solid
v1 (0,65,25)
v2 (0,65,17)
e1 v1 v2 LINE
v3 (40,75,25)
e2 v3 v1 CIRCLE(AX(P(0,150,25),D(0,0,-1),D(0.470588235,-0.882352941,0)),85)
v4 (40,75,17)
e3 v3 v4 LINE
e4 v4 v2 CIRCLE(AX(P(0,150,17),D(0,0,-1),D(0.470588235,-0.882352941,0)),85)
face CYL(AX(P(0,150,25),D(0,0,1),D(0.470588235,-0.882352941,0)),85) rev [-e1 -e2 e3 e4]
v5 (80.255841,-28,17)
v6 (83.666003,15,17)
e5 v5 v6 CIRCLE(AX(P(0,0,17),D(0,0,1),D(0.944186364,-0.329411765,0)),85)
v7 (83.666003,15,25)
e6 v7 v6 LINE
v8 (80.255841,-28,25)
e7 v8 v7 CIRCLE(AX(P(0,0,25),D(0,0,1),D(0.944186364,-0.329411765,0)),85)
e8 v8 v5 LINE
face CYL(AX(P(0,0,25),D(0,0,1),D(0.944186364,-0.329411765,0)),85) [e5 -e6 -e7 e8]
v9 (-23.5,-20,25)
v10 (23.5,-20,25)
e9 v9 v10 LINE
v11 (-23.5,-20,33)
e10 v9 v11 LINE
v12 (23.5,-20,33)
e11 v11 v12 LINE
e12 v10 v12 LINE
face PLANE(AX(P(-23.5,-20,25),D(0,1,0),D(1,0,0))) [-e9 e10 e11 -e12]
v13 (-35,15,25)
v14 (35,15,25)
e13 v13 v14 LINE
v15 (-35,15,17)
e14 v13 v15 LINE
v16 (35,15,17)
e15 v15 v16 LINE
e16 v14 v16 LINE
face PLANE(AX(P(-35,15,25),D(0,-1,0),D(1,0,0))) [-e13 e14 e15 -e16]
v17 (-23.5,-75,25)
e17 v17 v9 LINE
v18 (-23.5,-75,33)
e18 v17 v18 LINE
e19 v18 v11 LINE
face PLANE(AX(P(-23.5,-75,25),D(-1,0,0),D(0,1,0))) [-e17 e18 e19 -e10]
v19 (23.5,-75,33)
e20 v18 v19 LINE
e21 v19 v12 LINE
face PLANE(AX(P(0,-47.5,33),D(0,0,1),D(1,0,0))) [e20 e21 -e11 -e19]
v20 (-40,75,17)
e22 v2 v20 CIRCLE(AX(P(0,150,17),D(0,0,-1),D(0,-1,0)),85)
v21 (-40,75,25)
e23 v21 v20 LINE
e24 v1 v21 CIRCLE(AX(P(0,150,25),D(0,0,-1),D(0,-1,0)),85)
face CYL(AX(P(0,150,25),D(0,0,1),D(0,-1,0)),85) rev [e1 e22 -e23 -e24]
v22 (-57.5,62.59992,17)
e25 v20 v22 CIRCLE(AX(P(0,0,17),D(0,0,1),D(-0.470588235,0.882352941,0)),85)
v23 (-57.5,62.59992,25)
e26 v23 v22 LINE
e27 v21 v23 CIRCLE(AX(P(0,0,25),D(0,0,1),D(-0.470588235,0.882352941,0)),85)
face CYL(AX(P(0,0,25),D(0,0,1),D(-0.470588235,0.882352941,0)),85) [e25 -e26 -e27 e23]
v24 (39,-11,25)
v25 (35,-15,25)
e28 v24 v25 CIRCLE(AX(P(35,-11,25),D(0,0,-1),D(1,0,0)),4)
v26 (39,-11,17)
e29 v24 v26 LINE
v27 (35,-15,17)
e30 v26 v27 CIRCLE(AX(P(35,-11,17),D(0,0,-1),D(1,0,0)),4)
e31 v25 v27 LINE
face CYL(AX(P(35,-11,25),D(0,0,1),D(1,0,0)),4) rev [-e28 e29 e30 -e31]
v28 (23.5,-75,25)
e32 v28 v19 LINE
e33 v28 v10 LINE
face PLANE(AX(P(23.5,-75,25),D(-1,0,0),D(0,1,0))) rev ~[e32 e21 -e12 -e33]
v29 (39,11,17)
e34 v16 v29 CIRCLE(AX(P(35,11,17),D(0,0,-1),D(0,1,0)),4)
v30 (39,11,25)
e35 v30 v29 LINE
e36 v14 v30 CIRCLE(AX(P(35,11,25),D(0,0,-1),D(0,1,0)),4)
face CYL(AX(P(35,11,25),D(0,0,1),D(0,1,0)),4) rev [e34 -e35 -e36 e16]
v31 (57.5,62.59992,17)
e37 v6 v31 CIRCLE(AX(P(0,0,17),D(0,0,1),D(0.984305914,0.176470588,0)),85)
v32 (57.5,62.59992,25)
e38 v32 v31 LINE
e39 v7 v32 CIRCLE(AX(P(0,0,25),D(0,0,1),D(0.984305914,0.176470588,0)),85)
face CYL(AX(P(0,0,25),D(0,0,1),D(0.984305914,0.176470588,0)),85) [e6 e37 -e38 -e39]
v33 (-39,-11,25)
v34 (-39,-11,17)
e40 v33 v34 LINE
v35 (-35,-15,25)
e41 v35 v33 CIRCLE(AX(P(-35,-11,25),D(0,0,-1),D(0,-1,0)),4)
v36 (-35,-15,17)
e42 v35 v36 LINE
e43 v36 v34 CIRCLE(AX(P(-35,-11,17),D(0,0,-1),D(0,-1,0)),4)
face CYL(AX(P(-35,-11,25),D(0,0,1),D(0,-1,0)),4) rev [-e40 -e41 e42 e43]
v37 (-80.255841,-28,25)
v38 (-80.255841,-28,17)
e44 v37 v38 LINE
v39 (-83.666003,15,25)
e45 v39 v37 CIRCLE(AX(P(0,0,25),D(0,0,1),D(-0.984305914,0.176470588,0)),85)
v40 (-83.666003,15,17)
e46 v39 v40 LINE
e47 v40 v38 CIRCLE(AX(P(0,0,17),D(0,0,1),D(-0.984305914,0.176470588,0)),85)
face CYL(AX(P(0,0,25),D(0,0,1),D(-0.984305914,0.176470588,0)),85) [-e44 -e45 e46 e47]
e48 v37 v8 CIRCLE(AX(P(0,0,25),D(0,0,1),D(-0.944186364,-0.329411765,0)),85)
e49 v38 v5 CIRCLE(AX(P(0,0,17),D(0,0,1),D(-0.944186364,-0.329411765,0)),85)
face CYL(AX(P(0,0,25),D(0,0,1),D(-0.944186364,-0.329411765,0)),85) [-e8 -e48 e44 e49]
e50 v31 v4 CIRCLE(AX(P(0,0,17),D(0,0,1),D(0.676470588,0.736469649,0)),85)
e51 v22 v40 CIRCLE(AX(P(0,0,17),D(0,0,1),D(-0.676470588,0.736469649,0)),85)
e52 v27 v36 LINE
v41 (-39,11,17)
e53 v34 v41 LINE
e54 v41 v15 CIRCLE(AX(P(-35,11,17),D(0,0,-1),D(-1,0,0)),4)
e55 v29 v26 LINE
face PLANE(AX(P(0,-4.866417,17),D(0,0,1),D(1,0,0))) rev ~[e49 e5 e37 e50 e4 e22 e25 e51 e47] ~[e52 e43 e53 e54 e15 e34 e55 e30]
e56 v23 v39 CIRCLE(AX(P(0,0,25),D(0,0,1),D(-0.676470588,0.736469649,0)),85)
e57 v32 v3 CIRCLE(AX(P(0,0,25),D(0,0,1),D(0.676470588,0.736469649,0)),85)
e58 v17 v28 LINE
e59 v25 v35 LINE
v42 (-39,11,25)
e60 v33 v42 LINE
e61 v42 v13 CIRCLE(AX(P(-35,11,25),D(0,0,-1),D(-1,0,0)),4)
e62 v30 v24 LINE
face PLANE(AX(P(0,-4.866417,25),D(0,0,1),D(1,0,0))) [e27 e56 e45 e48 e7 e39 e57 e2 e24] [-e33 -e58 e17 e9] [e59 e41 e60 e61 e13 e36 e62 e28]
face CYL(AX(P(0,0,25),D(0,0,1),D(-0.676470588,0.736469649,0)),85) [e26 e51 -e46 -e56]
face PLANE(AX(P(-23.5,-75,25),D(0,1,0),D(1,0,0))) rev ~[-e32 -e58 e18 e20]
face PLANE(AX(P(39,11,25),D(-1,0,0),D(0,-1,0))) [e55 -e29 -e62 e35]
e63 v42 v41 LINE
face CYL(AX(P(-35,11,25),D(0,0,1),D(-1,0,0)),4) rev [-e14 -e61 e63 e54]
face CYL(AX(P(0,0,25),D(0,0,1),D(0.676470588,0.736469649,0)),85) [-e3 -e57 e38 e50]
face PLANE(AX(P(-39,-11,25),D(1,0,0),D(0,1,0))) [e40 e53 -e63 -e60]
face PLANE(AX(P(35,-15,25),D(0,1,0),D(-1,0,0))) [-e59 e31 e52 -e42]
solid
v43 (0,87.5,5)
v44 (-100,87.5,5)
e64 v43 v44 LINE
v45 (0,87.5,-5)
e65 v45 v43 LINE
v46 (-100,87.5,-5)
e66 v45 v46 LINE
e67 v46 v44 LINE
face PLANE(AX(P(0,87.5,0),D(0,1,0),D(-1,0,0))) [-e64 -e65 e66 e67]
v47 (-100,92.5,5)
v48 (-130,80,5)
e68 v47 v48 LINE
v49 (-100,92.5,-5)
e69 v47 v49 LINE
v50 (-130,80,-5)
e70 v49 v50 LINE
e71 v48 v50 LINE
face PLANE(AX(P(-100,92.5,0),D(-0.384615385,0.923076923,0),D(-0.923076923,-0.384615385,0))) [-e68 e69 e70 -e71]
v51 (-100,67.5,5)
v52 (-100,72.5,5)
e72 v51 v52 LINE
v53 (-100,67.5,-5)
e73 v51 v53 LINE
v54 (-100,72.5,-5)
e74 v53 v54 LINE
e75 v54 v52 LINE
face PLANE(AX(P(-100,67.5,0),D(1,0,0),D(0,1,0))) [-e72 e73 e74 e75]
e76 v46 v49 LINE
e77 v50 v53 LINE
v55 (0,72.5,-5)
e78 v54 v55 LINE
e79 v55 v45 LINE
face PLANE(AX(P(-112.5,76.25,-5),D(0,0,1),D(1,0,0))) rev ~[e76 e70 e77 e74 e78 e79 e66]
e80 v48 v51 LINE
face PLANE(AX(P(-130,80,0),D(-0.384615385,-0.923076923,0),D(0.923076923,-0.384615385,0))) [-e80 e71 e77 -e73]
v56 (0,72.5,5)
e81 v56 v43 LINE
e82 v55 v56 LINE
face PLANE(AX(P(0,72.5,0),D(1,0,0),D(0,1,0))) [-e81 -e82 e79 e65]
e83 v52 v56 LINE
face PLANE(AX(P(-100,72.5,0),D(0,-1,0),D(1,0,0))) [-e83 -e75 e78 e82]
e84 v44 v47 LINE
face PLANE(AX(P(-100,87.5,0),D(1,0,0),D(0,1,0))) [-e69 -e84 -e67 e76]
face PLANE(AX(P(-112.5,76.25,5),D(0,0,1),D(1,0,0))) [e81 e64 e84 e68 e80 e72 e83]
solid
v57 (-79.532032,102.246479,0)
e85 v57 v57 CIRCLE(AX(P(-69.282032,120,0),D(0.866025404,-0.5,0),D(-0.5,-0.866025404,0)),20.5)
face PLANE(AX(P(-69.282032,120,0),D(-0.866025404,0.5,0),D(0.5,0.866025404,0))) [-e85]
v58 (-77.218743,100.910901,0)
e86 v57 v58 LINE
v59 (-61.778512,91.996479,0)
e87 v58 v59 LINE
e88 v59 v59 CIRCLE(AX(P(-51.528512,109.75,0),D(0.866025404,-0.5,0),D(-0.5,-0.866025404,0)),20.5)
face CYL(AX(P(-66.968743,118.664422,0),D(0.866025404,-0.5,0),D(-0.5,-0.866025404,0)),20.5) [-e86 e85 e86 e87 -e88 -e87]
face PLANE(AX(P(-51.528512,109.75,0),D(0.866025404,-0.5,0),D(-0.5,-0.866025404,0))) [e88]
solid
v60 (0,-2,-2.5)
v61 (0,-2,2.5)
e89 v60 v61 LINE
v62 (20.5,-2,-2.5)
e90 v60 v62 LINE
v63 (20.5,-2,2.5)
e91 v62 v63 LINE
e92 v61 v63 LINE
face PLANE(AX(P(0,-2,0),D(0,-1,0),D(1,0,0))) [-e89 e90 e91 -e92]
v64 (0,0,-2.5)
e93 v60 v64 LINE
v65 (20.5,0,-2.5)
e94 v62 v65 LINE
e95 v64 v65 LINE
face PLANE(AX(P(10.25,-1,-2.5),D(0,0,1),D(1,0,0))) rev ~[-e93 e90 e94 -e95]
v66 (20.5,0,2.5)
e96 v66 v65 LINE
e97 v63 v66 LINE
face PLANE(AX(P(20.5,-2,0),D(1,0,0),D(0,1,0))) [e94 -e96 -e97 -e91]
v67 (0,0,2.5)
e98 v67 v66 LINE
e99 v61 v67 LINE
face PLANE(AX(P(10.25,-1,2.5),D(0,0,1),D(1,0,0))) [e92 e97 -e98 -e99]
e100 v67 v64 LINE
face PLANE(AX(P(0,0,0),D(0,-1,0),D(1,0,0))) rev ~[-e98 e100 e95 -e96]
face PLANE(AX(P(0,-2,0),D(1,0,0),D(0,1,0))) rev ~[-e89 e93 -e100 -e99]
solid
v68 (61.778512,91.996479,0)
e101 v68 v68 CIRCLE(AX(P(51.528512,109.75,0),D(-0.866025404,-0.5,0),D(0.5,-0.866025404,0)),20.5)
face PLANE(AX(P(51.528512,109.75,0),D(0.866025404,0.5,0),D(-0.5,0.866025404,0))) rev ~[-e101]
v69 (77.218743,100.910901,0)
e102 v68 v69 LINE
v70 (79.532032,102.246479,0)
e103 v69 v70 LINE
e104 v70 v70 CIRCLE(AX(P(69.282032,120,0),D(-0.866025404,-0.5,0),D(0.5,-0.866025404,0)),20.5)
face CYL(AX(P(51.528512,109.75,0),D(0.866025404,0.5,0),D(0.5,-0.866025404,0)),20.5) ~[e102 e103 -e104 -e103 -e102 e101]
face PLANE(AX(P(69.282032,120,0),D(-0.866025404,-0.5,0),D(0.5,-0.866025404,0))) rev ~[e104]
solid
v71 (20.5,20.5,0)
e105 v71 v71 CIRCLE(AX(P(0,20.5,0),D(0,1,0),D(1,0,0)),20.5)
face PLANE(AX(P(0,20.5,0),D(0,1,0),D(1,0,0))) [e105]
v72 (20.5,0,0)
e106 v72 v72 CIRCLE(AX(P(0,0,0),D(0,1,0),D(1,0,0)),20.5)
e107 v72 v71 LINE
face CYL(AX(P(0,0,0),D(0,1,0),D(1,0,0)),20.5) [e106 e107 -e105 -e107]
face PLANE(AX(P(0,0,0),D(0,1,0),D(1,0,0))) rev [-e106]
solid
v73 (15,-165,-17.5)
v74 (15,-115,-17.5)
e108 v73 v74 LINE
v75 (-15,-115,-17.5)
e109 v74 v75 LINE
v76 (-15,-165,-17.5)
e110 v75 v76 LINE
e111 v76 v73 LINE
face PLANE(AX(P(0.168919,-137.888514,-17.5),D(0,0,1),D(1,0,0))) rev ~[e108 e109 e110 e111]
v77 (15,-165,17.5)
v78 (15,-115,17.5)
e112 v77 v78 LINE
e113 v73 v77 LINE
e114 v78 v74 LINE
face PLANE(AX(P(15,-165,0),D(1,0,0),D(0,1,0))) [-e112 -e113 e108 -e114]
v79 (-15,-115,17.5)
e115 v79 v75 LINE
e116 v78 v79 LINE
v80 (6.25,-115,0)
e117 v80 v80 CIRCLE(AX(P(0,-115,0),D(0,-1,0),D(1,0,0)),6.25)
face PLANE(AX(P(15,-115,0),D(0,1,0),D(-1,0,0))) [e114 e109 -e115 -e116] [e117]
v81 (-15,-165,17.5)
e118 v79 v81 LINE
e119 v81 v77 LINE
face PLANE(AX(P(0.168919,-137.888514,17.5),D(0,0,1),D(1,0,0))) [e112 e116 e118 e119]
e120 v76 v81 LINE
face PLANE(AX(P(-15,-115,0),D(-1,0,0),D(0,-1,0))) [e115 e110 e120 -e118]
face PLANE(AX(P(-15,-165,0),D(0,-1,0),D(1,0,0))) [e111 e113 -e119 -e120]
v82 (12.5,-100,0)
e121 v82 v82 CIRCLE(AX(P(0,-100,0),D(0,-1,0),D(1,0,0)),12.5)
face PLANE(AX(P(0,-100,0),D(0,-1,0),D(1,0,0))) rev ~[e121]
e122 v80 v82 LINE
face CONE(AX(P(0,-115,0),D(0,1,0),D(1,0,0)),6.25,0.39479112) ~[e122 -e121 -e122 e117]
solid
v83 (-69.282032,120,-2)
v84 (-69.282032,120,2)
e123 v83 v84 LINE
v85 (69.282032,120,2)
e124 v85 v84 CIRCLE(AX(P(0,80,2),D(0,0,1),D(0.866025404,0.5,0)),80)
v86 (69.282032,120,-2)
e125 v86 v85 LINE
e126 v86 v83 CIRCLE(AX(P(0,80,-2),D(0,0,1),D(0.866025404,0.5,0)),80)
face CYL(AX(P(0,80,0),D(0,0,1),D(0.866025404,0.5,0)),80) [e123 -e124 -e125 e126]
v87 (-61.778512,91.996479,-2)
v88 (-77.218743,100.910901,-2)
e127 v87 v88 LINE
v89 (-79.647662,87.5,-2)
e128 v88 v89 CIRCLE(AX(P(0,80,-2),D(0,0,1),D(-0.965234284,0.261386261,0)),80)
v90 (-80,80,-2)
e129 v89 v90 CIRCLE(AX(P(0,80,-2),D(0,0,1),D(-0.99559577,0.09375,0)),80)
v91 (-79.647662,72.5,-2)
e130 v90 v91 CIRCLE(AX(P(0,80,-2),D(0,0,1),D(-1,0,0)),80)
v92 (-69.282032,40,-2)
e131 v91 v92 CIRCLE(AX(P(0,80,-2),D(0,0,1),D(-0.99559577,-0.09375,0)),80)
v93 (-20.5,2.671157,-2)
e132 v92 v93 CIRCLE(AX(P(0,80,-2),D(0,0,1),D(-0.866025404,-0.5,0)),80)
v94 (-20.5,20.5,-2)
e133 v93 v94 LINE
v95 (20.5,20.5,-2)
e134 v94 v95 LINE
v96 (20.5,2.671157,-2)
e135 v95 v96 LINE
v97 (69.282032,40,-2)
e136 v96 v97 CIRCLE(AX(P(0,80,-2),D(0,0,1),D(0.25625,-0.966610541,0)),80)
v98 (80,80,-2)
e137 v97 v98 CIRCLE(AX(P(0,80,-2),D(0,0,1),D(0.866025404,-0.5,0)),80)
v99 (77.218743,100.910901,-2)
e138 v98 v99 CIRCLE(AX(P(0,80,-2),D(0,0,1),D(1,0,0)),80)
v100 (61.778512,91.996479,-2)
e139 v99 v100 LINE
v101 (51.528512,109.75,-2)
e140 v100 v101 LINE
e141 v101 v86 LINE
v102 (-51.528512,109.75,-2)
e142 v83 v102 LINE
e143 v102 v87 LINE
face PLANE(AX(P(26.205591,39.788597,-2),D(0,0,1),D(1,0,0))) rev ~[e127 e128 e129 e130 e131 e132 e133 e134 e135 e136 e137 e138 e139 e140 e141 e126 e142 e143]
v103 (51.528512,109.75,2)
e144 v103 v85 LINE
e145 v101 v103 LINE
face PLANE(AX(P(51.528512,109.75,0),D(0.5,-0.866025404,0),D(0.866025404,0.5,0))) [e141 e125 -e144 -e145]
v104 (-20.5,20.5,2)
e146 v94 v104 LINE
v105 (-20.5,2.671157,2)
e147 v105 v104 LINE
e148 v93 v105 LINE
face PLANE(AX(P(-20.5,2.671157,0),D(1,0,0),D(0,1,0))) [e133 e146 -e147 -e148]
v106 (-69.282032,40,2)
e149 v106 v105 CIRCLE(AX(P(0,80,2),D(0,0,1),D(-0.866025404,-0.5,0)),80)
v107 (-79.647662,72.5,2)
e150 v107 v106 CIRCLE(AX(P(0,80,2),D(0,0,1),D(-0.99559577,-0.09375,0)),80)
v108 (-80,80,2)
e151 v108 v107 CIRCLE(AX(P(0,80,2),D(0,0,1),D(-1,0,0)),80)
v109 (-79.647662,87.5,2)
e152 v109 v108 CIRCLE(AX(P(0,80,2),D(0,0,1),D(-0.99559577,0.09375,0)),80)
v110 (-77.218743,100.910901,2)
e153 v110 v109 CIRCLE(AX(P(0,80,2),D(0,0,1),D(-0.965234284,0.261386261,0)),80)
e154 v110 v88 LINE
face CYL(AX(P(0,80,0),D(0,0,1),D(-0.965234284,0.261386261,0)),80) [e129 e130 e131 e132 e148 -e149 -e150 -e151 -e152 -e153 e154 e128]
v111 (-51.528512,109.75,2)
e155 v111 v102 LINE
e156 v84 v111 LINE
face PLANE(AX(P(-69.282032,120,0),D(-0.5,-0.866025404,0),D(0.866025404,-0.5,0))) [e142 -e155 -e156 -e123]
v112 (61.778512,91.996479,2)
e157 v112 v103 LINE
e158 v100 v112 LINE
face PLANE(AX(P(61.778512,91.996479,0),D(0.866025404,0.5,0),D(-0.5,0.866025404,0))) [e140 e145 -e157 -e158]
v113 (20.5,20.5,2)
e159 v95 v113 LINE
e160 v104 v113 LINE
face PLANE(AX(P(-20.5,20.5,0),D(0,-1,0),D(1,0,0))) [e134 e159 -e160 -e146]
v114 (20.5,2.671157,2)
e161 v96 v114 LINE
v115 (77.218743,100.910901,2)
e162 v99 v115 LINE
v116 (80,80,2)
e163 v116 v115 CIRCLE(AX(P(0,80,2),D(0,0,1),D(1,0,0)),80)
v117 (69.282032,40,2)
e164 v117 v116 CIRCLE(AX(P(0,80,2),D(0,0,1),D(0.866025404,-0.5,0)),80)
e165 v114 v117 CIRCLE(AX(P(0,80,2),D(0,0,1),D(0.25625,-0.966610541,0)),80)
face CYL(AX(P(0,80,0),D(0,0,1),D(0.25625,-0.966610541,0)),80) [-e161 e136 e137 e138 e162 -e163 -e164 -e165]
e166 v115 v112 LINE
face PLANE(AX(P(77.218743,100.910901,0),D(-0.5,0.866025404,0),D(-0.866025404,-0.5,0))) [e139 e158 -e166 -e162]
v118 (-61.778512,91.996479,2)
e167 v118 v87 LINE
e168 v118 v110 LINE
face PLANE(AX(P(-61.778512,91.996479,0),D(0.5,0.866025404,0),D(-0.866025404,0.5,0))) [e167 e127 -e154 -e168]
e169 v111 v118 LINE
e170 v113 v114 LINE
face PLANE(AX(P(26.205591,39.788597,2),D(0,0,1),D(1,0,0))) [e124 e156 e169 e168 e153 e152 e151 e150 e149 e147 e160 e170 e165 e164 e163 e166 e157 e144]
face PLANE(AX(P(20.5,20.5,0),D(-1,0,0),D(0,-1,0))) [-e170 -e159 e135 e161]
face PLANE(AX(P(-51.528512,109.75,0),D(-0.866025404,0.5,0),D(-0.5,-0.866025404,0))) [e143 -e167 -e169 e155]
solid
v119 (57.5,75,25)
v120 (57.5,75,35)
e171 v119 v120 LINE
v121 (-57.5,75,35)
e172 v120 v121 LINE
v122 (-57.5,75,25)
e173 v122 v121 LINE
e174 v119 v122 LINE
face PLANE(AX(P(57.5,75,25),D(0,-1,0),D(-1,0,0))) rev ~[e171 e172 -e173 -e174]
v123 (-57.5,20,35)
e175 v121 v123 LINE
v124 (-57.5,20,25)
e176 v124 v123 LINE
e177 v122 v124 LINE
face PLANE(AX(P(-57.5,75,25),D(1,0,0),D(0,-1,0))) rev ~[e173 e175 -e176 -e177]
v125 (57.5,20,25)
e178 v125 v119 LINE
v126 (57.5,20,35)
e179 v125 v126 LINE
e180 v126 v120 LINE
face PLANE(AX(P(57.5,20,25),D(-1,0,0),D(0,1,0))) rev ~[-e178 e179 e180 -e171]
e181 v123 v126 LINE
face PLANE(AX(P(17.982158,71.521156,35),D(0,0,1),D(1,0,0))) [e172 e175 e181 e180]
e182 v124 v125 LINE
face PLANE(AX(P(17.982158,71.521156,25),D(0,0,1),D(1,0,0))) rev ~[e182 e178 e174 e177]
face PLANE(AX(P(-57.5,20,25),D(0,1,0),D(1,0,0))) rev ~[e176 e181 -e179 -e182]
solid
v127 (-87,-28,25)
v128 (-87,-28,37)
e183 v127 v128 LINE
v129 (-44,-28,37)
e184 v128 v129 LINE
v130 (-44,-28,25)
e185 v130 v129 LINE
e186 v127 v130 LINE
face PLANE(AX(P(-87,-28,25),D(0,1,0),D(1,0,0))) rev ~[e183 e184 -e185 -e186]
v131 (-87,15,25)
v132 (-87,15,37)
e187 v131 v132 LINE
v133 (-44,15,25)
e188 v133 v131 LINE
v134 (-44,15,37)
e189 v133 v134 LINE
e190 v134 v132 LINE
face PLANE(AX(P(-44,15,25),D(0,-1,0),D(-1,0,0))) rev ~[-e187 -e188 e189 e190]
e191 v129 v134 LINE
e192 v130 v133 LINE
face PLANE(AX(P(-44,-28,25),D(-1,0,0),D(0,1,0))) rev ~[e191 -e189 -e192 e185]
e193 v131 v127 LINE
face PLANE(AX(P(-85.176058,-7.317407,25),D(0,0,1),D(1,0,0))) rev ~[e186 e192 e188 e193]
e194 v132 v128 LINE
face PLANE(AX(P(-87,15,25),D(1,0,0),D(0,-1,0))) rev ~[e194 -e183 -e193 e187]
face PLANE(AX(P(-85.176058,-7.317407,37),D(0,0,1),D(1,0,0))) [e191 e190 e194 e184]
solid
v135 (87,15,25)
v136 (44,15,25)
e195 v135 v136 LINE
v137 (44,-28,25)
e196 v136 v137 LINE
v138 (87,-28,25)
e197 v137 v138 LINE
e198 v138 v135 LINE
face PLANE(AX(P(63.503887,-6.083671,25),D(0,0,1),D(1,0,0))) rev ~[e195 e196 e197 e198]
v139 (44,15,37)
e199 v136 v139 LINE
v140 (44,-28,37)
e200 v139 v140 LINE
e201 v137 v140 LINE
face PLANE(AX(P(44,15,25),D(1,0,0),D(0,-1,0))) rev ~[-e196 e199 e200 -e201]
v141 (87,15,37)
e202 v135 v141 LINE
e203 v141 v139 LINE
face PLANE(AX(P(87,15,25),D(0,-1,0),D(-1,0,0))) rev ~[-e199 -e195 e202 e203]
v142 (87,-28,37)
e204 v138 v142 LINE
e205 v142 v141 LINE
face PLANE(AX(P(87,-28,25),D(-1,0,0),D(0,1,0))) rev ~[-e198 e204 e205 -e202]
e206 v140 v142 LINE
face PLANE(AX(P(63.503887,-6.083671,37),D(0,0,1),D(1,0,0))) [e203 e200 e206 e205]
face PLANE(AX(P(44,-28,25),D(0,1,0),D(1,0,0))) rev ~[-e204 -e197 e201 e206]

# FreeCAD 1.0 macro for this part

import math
import FreeCAD as App
import Part
import Sketcher

V = App.Vector
Q = App.Units.Quantity


def add_polygon(sketch, points):
    """Adds a closed chain of lines whose ends are joined by coincident constraints."""
    first, n = sketch.GeometryCount, len(points)
    for a, b in zip(points, points[1:] + points[:1]):
        sketch.addGeometry(Part.LineSegment(App.Vector(*a, 0), App.Vector(*b, 0)), False)
    for i in range(n):
        sketch.addConstraint(Sketcher.Constraint("Coincident", first + i, 2, first + (i + 1) % n, 1))

doc = App.newDocument("Part")
body = doc.addObject("PartDesign::Body", "Body")

# Sketch on XY plane
sketch1 = body.newObject("Sketcher::SketchObject", "Sketch")
sketch1.AttachmentSupport = (doc.getObject("XY_Plane"), [""])
sketch1.MapMode = "FlatFace"
sketch1.addGeometry([
    Part.ArcOfCircle(Part.Circle(V(0, 80, 0), V(0, 0, 1), 80), math.radians(164.85), math.radians(174.62)),  # 0
    Part.ArcOfCircle(Part.Circle(V(0, 80, 0), V(0, 0, 1), 80), math.radians(174.62), math.radians(180)),  # 1
    Part.ArcOfCircle(Part.Circle(V(0, 80, 0), V(0, 0, 1), 80), math.radians(-180), math.radians(-174.62)),  # 2
    Part.ArcOfCircle(Part.Circle(V(0, 80, 0), V(0, 0, 1), 80), math.radians(-175), math.radians(-150)),  # 3
    Part.ArcOfCircle(Part.Circle(V(0, 80, 0), V(0, 0, 1), 80), math.radians(-150), math.radians(-105)),  # 4
    Part.LineSegment(V(-20, 3, 0), V(-20, 20, 0)),  # 5
    Part.LineSegment(V(-20, 20, 0), V(20, 20, 0)),  # 6
    Part.LineSegment(V(20, 20, 0), V(20, 3, 0)),  # 7
    Part.ArcOfCircle(Part.Circle(V(0, 80, 0), V(0, 0, 1), 80), math.radians(-75), math.radians(-30)),  # 8
    Part.ArcOfCircle(Part.Circle(V(0, 80, 0), V(0, 0, 1), 80), math.radians(-30), math.radians(0)),  # 9
    Part.ArcOfCircle(Part.Circle(V(0, 80, 0), V(0, 0, 1), 80), math.radians(0), math.radians(15.15)),  # 10
    Part.LineSegment(V(77, 101, 0), V(62, 92, 0)),  # 11
    Part.LineSegment(V(62, 92, 0), V(52, 110, 0)),  # 12
    Part.LineSegment(V(52, 110, 0), V(69, 120, 0)),  # 13
    Part.ArcOfCircle(Part.Circle(V(0, 80, 0), V(0, 0, 1), 80), math.radians(30), math.radians(150)),  # 14
    Part.LineSegment(V(-69, 120, 0), V(-52, 110, 0)),  # 15
    Part.LineSegment(V(-52, 110, 0), V(-62, 92, 0)),  # 16
    Part.LineSegment(V(-62, 92, 0), V(-77, 101, 0)),  # 17
], False)
sketch1.addConstraint([
    Sketcher.Constraint("Tangent", 0, 2, 1, 1),
    Sketcher.Constraint("Tangent", 1, 2, 2, 1),
    Sketcher.Constraint("Tangent", 2, 2, 3, 1),
    Sketcher.Constraint("Tangent", 3, 2, 4, 1),
    Sketcher.Constraint("Coincident", 4, 2, 5, 1),
    Sketcher.Constraint("Coincident", 5, 2, 6, 1),
    Sketcher.Constraint("Coincident", 6, 2, 7, 1),
    Sketcher.Constraint("Coincident", 7, 2, 8, 1),
    Sketcher.Constraint("Tangent", 8, 2, 9, 1),
    Sketcher.Constraint("Tangent", 9, 2, 10, 1),
    Sketcher.Constraint("Coincident", 10, 2, 11, 1),
    Sketcher.Constraint("Coincident", 11, 2, 12, 1),
    Sketcher.Constraint("Coincident", 12, 2, 13, 1),
    Sketcher.Constraint("Coincident", 13, 2, 14, 1),
    Sketcher.Constraint("Coincident", 14, 2, 15, 1),
    Sketcher.Constraint("Coincident", 15, 2, 16, 1),
    Sketcher.Constraint("Coincident", 16, 2, 17, 1),
    Sketcher.Constraint("Coincident", 17, 2, 0, 1),
    Sketcher.Constraint("Vertical", 5),
    Sketcher.Constraint("Horizontal", 6),
    Sketcher.Constraint("Vertical", 7),
    Sketcher.Constraint("Coincident", 2, 3, 0, 3),
    Sketcher.Constraint("Coincident", 4, 3, 0, 3),
    Sketcher.Constraint("Coincident", 8, 3, 0, 3),
    Sketcher.Constraint("Coincident", 10, 3, 0, 3),
    Sketcher.Constraint("Coincident", 14, 3, 0, 3),
    Sketcher.Constraint("Equal", 4, 8),
    Sketcher.Constraint("Equal", 10, 14),
    Sketcher.Constraint("Symmetric", 4, 2, 7, 2, -2),
    Sketcher.Constraint("Symmetric", 12, 2, 15, 2, -2),
    Sketcher.Constraint("Symmetric", 11, 2, 16, 2, -2),
    Sketcher.Constraint("Perpendicular", 11, 12),
    Sketcher.Constraint("Perpendicular", 12, 13),
    Sketcher.Constraint("Perpendicular", 15, 16),
    Sketcher.Constraint("Perpendicular", 16, 17),
    Sketcher.Constraint("Horizontal", 14, 3, 1, 2),
    Sketcher.Constraint("Horizontal", 3, 2, 8, 2),
    Sketcher.Constraint("Horizontal", 1, 2, 9, 2),
    Sketcher.Constraint("Vertical", 0, 2, 2, 2),
    Sketcher.Constraint("Vertical", 8, 2, 13, 2),
    Sketcher.Constraint("Equal", 12, 13),
    Sketcher.Constraint("Radius", 0, Q("80 mm")),
    Sketcher.Constraint("DistanceX", 6, 1, 6, 2, Q("41 mm")),
    Sketcher.Constraint("Angle", 11, Q("-150 deg")),
    Sketcher.Constraint("DistanceY", -1, 1, 0, 3, Q("80 mm")),
    Sketcher.Constraint("DistanceY", -1, 1, 3, 2, Q("40 mm")),
    Sketcher.Constraint("DistanceY", 2, 2, 0, 2, Q("15 mm")),
    Sketcher.Constraint("Distance", 12, Q("20.5 mm")),
    Sketcher.Constraint("DistanceY", -1, 1, 5, 2, Q("20.5 mm")),
])
pad1 = body.newObject("PartDesign::Pad", "Pad")
pad1.Profile = sketch1
pad1.Length = 4
pad1.Midplane = True
body2 = doc.addObject("PartDesign::Body", "Body001")

# Sketch on XY plane
sketch2 = body2.newObject("Sketcher::SketchObject", "Sketch001")
sketch2.AttachmentSupport = (doc.getObject("XY_Plane001"), [""])
sketch2.MapMode = "FlatFace"
add_polygon(sketch2, [(0, 20), (0, 0), (20, 0), (20, 20)])  # lines 0-3
sketch2.addConstraint([
    Sketcher.Constraint("Vertical", 0),
    Sketcher.Constraint("Horizontal", 1),
    Sketcher.Constraint("Vertical", 2),
    Sketcher.Constraint("Horizontal", 3),
    Sketcher.Constraint("Coincident", 0, 2, -1, 1),
    Sketcher.Constraint("Equal", 3, 0),
    Sketcher.Constraint("DistanceX", 1, 1, 1, 2, Q("20.5 mm")),
])
revolution = body2.newObject("PartDesign::Revolution", "Revolution")
revolution.Profile = sketch2
revolution.ReferenceAxis = (sketch2, ["V_Axis"])
revolution.Angle = 360
body3 = doc.addObject("PartDesign::Body", "Body002")

# Sketch on XY plane
sketch3 = body3.newObject("Sketcher::SketchObject", "Sketch002")
sketch3.AttachmentSupport = (doc.getObject("XY_Plane002"), [""])
sketch3.MapMode = "FlatFace"
add_polygon(sketch3, [(12, -100), (0, -100), (0, -115), (6, -115)])  # lines 0-3
sketch3.addConstraint([
    Sketcher.Constraint("Horizontal", 0),
    Sketcher.Constraint("Vertical", 1),
    Sketcher.Constraint("Horizontal", 2),
    Sketcher.Constraint("PointOnObject", 0, 2, -2),
    Sketcher.Constraint("DistanceY", 1, 2, 1, 1, Q("15 mm")),
    Sketcher.Constraint("DistanceX", 0, 2, 0, 1, Q("12.5 mm")),
    Sketcher.Constraint("DistanceY", 0, 2, -1, 1, Q("100 mm")),
    Sketcher.Constraint("DistanceX", 2, 1, 2, 2, Q("6.25 mm")),
])
revolution2 = body3.newObject("PartDesign::Revolution", "Revolution001")
revolution2.Profile = sketch3
revolution2.ReferenceAxis = (sketch3, ["V_Axis"])
revolution2.Angle = 360

# Sketch on XY plane
sketch4 = body3.newObject("Sketcher::SketchObject", "Sketch003")
sketch4.AttachmentSupport = (doc.getObject("XY_Plane002"), [""])
sketch4.MapMode = "FlatFace"
add_polygon(sketch4, [(-15, -115), (-15, -165), (15, -165), (15, -115)])  # lines 0-3
sketch4.addConstraint([
    Sketcher.Constraint("Vertical", 0),
    Sketcher.Constraint("Horizontal", 1),
    Sketcher.Constraint("Vertical", 2),
    Sketcher.Constraint("Horizontal", 3),
    Sketcher.Constraint("DistanceX", 1, 1, 1, 2, Q("30 mm")),
    Sketcher.Constraint("DistanceY", 0, 2, 0, 1, Q("50 mm")),
    Sketcher.Constraint("DistanceX", 0, 2, -1, 1, Q("15 mm")),
    Sketcher.Constraint("DistanceY", 0, 2, -1, 1, Q("165 mm")),
])
pad2 = body3.newObject("PartDesign::Pad", "Pad001")
pad2.Profile = sketch4
pad2.Length = 35
pad2.Midplane = True
body4 = doc.addObject("PartDesign::Body", "Body003")

# Sketch on XY plane
sketch5 = body4.newObject("Sketcher::SketchObject", "Sketch004")
sketch5.AttachmentSupport = (doc.getObject("XY_Plane003"), [""])
sketch5.MapMode = "FlatFace"
add_polygon(sketch5, [(0, 0), (0, -2), (20.5, -2), (20.5, 0)])  # lines 0-3
sketch5.addConstraint([
    Sketcher.Constraint("Vertical", 0),
    Sketcher.Constraint("Horizontal", 1),
    Sketcher.Constraint("Vertical", 2),
    Sketcher.Constraint("Horizontal", 3),
    Sketcher.Constraint("Coincident", 3, 2, -1, 1),
    Sketcher.Constraint("DistanceY", 0, 2, 0, 1, Q("2 mm")),
    Sketcher.Constraint("DistanceX", 1, 1, 1, 2, Q("20.5 mm")),
])
pad3 = body4.newObject("PartDesign::Pad", "Pad002")
pad3.Profile = sketch5
pad3.Length = 5
pad3.Midplane = True
body5 = doc.addObject("PartDesign::Body", "Body004")

# Sketch on XY plane
sketch6 = body5.newObject("Sketcher::SketchObject", "Sketch005")
sketch6.AttachmentSupport = (doc.getObject("XY_Plane004"), [""])
sketch6.MapMode = "FlatFace"
add_polygon(sketch6, [(61.8, 92), (77.2, 100.9), (79.5, 102.2), (69.3, 120), (51.5, 109.8)])  # lines 0-4
sketch6.addGeometry(Part.LineSegment(V(69.3, 120, 0), V(51.5, 109.7, 0)), True)  # axis
sketch6.addConstraint([
    Sketcher.Constraint("Coincident", 5, 1, 2, 2),
    Sketcher.Constraint("Coincident", 5, 2, 3, 2),
    Sketcher.Constraint("Parallel", 0, 1),
    Sketcher.Constraint("Perpendicular", 1, 2),
    Sketcher.Constraint("Perpendicular", 2, 3),
    Sketcher.Constraint("Perpendicular", 3, 4),
    Sketcher.Constraint("Equal", 2, 3),
    Sketcher.Constraint("Angle", 0, Q("30 deg")),
    Sketcher.Constraint("DistanceY", -1, 1, 2, 2, Q("120 mm")),
    Sketcher.Constraint("Distance", 2, Q("20.5 mm")),
    Sketcher.Constraint("DistanceY", -1, 1, 0, 2, Q("100.910901 mm")),
    Sketcher.Constraint("DistanceX", -1, 1, 3, 2, Q("51.528512 mm")),
])
revolution3 = body5.newObject("PartDesign::Revolution", "Revolution002")
revolution3.Profile = sketch6
revolution3.ReferenceAxis = (sketch6, ["Axis0"])
revolution3.Angle = 360
body6 = doc.addObject("PartDesign::Body", "Body005")

# Sketch on XY plane
sketch7 = body6.newObject("Sketcher::SketchObject", "Sketch006")
sketch7.AttachmentSupport = (doc.getObject("XY_Plane005"), [""])
sketch7.MapMode = "FlatFace"
add_polygon(sketch7, [(-77.2, 100.9), (-61.8, 92), (-51.5, 109.8), (-69.3, 120), (-79.5, 102.2)])  # lines 0-4
sketch7.addGeometry(Part.LineSegment(V(-69.3, 120, 0), V(-51.5, 109.7, 0)), True)  # axis
sketch7.addConstraint([
    Sketcher.Constraint("Coincident", 5, 1, 2, 2),
    Sketcher.Constraint("Coincident", 5, 2, 1, 2),
    Sketcher.Constraint("Perpendicular", 0, 1),
    Sketcher.Constraint("Perpendicular", 1, 2),
    Sketcher.Constraint("Perpendicular", 2, 3),
    Sketcher.Constraint("Perpendicular", 3, 4),
    Sketcher.Constraint("Equal", 1, 2),
    Sketcher.Constraint("Angle", 0, Q("-30 deg")),
    Sketcher.Constraint("DistanceY", -1, 1, 2, 2, Q("120 mm")),
    Sketcher.Constraint("Distance", 1, Q("20.5 mm")),
    Sketcher.Constraint("DistanceY", -1, 1, 4, 2, Q("100.910901 mm")),
    Sketcher.Constraint("DistanceX", 0, 2, -1, 1, Q("61.778512 mm")),
])
revolution4 = body6.newObject("PartDesign::Revolution", "Revolution003")
revolution4.Profile = sketch7
revolution4.ReferenceAxis = (sketch7, ["Axis0"])
revolution4.Angle = 360
body7 = doc.addObject("PartDesign::Body", "Body006")

# Sketch on XY plane
sketch8 = body7.newObject("Sketcher::SketchObject", "Sketch007")
sketch8.AttachmentSupport = (doc.getObject("XY_Plane006"), [""])
sketch8.MapMode = "FlatFace"
add_polygon(sketch8, [(-100, 68), (-100, 72), (0, 72), (0, 88), (-100, 88), (-100, 92), (-130, 80)])  # lines 0-6
sketch8.addConstraint([
    Sketcher.Constraint("Vertical", 0),
    Sketcher.Constraint("Horizontal", 1),
    Sketcher.Constraint("Vertical", 2),
    Sketcher.Constraint("Horizontal", 3),
    Sketcher.Constraint("Vertical", 4),
    Sketcher.Constraint("PointOnObject", 1, 2, -2),
    Sketcher.Constraint("Vertical", 0, 2, 3, 2),
    Sketcher.Constraint("Equal", 0, 4),
    Sketcher.Constraint("Equal", 5, 6),
    Sketcher.Constraint("DistanceX", 1, 1, 1, 2, Q("100 mm")),
    Sketcher.Constraint("DistanceY", 0, 1, 0, 2, Q("5 mm")),
    Sketcher.Constraint("DistanceY", 2, 1, 2, 2, Q("15 mm")),
    Sketcher.Constraint("DistanceX", 5, 2, -1, 1, Q("130 mm")),
    Sketcher.Constraint("DistanceY", -1, 1, 5, 2, Q("80 mm")),
])
pad4 = body7.newObject("PartDesign::Pad", "Pad003")
pad4.Profile = sketch8
pad4.Length = 10
pad4.Midplane = True
body8 = doc.addObject("PartDesign::Body", "Body007")

# Sketch on XY plane
sketch9 = body8.newObject("Sketcher::SketchObject", "Sketch008")
sketch9.AttachmentSupport = (doc.getObject("XY_Plane007"), [""])
sketch9.MapMode = "FlatFace"
sketch9.AttachmentOffset = App.Placement(V(0, 0, 25), App.Rotation())
sketch9.addGeometry([
    Part.ArcOfCircle(Part.Circle(V(0, 0, 0), V(0, 0, 1), 85), math.radians(133), math.radians(170)),  # 0
    Part.ArcOfCircle(Part.Circle(V(0, 0, 0), V(0, 0, 1), 85), math.radians(170), math.radians(199)),  # 1
    Part.ArcOfCircle(Part.Circle(V(0, 0, 0), V(0, 0, 1), 85), math.radians(-161), math.radians(-19)),  # 2
    Part.ArcOfCircle(Part.Circle(V(0, 0, 0), V(0, 0, 1), 85), math.radians(-19), math.radians(10)),  # 3
    Part.ArcOfCircle(Part.Circle(V(0, 0, 0), V(0, 0, 1), 85), math.radians(10), math.radians(47)),  # 4
    Part.ArcOfCircle(Part.Circle(V(0, 0, 0), V(0, 0, 1), 85), math.radians(47.43), math.radians(61.93)),  # 5
    Part.ArcOfCircle(Part.Circle(V(0, 150, 0), V(0, 0, 1), 85), math.radians(-90), math.radians(-62)),  # 6
    Part.ArcOfCircle(Part.Circle(V(0, 150, 0), V(0, 0, 1), 85), math.radians(-118), math.radians(-90)),  # 7
    Part.ArcOfCircle(Part.Circle(V(0, 0, 0), V(0, 0, 1), 85), math.radians(118.07), math.radians(132.57)),  # 8
    Part.LineSegment(V(-39, -11, 0), V(-39, 11, 0)),  # 9
    Part.ArcOfCircle(Part.Circle(V(-35, 11, 0), V(0, 0, 1), 4), math.radians(90), math.radians(180)),  # 10
    Part.LineSegment(V(-35, 15, 0), V(35, 15, 0)),  # 11
    Part.ArcOfCircle(Part.Circle(V(35, 11, 0), V(0, 0, 1), 4), math.radians(0), math.radians(90)),  # 12
    Part.LineSegment(V(39, 11, 0), V(39, -11, 0)),  # 13
    Part.ArcOfCircle(Part.Circle(V(35, -11, 0), V(0, 0, 1), 4), math.radians(-90), math.radians(0)),  # 14
    Part.LineSegment(V(35, -15, 0), V(-35, -15, 0)),  # 15
    Part.ArcOfCircle(Part.Circle(V(-35, -11, 0), V(0, 0, 1), 4), math.radians(180), math.radians(270)),  # 16
], False)
sketch9.addConstraint([
    Sketcher.Constraint("Tangent", 0, 2, 1, 1),
    Sketcher.Constraint("Tangent", 1, 2, 2, 1),
    Sketcher.Constraint("Tangent", 2, 2, 3, 1),
    Sketcher.Constraint("Tangent", 3, 2, 4, 1),
    Sketcher.Constraint("Tangent", 4, 2, 5, 1),
    Sketcher.Constraint("Coincident", 5, 2, 6, 2),
    Sketcher.Constraint("Tangent", 6, 1, 7, 2),
    Sketcher.Constraint("Coincident", 7, 1, 8, 1),
    Sketcher.Constraint("Tangent", 8, 2, 0, 1),
    Sketcher.Constraint("Tangent", 9, 2, 10, 2),
    Sketcher.Constraint("Tangent", 10, 1, 11, 1),
    Sketcher.Constraint("Tangent", 11, 2, 12, 2),
    Sketcher.Constraint("Tangent", 12, 1, 13, 1),
    Sketcher.Constraint("Tangent", 13, 2, 14, 2),
    Sketcher.Constraint("Tangent", 14, 1, 15, 1),
    Sketcher.Constraint("Tangent", 15, 2, 16, 2),
    Sketcher.Constraint("Tangent", 16, 1, 9, 1),
    Sketcher.Constraint("Vertical", 9),
    Sketcher.Constraint("Horizontal", 11),
    Sketcher.Constraint("Vertical", 13),
    Sketcher.Constraint("Horizontal", 15),
    Sketcher.Constraint("Coincident", 0, 3, -1, 1),
    Sketcher.Constraint("Coincident", 2, 3, -1, 1),
    Sketcher.Constraint("Coincident", 4, 3, -1, 1),
    Sketcher.Constraint("Equal", 4, 5),
    Sketcher.Constraint("Equal", 5, 6),
    Sketcher.Constraint("Equal", 6, 7),
    Sketcher.Constraint("Equal", 7, 8),
    Sketcher.Constraint("Equal", 10, 12),
    Sketcher.Constraint("Equal", 12, 14),
    Sketcher.Constraint("Equal", 14, 16),
    Sketcher.Constraint("Symmetric", 10, 3, 14, 3, -1, 1),
    Sketcher.Constraint("PointOnObject", 6, 3, -2),
    Sketcher.Constraint("PointOnObject", 6, 1, -2),
    Sketcher.Constraint("Horizontal", 1, 2, 2, 2),
    Sketcher.Constraint("Horizontal", 0, 2, 3, 2),
    Sketcher.Constraint("Horizontal", 4, 2, 8, 2),
    Sketcher.Constraint("Horizontal", 3, 2, 10, 1),
    Sketcher.Constraint("Radius", 0, Q("85 mm")),
    Sketcher.Constraint("Radius", 10, Q("4 mm")),
    Sketcher.Constraint("DistanceX", 11, 1, 11, 2, Q("70 mm")),
    Sketcher.Constraint("DistanceY", 9, 1, 9, 2, Q("22 mm")),
    Sketcher.Constraint("DistanceY", -1, 1, 6, 3, Q("150 mm")),
    Sketcher.Constraint("DistanceY", 1, 2, -1, 1, Q("28 mm")),
    Sketcher.Constraint("DistanceX", -1, 1, 4, 2, Q("57.5 mm")),
])
pad5 = body8.newObject("PartDesign::Pad", "Pad004")
pad5.Profile = sketch9
pad5.Length = 8
pad5.Reversed = True

# Sketch on XY plane
sketch10 = body8.newObject("Sketcher::SketchObject", "Sketch009")
sketch10.AttachmentSupport = (doc.getObject("XY_Plane007"), [""])
sketch10.MapMode = "FlatFace"
sketch10.AttachmentOffset = App.Placement(V(0, 0, 25), App.Rotation())
add_polygon(sketch10, [(-24, -20), (-24, -75), (24, -75), (24, -20)])  # lines 0-3
sketch10.addConstraint([
    Sketcher.Constraint("Vertical", 0),
    Sketcher.Constraint("Horizontal", 1),
    Sketcher.Constraint("Vertical", 2),
    Sketcher.Constraint("Horizontal", 3),
    Sketcher.Constraint("DistanceX", 1, 1, 1, 2, Q("47 mm")),
    Sketcher.Constraint("DistanceY", 0, 2, 0, 1, Q("55 mm")),
    Sketcher.Constraint("DistanceY", 0, 2, -1, 1, Q("75 mm")),
    Sketcher.Constraint("DistanceX", 0, 2, -1, 1, Q("23.5 mm")),
])
pad6 = body8.newObject("PartDesign::Pad", "Pad005")
pad6.Profile = sketch10
pad6.Length = 8
body9 = doc.addObject("PartDesign::Body", "Body008")

# Sketch on XY plane
sketch11 = body9.newObject("Sketcher::SketchObject", "Sketch010")
sketch11.AttachmentSupport = (doc.getObject("XY_Plane008"), [""])
sketch11.MapMode = "FlatFace"
sketch11.AttachmentOffset = App.Placement(V(0, 0, 25), App.Rotation())
add_polygon(sketch11, [(-58, 75), (-58, 20), (58, 20), (58, 75)])  # lines 0-3
sketch11.addConstraint([
    Sketcher.Constraint("Vertical", 0),
    Sketcher.Constraint("Horizontal", 1),
    Sketcher.Constraint("Vertical", 2),
    Sketcher.Constraint("Horizontal", 3),
    Sketcher.Constraint("DistanceX", 1, 1, 1, 2, Q("115 mm")),
    Sketcher.Constraint("DistanceY", 0, 2, 0, 1, Q("55 mm")),
    Sketcher.Constraint("DistanceY", -1, 1, 0, 2, Q("20 mm")),
    Sketcher.Constraint("DistanceX", 0, 2, -1, 1, Q("57.5 mm")),
])
pad7 = body9.newObject("PartDesign::Pad", "Pad006")
pad7.Profile = sketch11
pad7.Length = 10
body10 = doc.addObject("PartDesign::Body", "Body009")

# Sketch on XY plane
sketch12 = body10.newObject("Sketcher::SketchObject", "Sketch011")
sketch12.AttachmentSupport = (doc.getObject("XY_Plane009"), [""])
sketch12.MapMode = "FlatFace"
sketch12.AttachmentOffset = App.Placement(V(0, 0, 25), App.Rotation())
add_polygon(sketch12, [(-87, 15), (-87, -28), (-44, -28), (-44, 15)])  # lines 0-3
sketch12.addConstraint([
    Sketcher.Constraint("Vertical", 0),
    Sketcher.Constraint("Horizontal", 1),
    Sketcher.Constraint("Vertical", 2),
    Sketcher.Constraint("Horizontal", 3),
    Sketcher.Constraint("Equal", 3, 0),
    Sketcher.Constraint("DistanceX", 1, 1, 1, 2, Q("43 mm")),
    Sketcher.Constraint("DistanceX", 0, 2, -1, 1, Q("87 mm")),
    Sketcher.Constraint("DistanceY", 0, 2, -1, 1, Q("28 mm")),
])
pad8 = body10.newObject("PartDesign::Pad", "Pad007")
pad8.Profile = sketch12
pad8.Length = 12
body11 = doc.addObject("PartDesign::Body", "Body010")

# Sketch on XY plane
sketch13 = body11.newObject("Sketcher::SketchObject", "Sketch012")
sketch13.AttachmentSupport = (doc.getObject("XY_Plane010"), [""])
sketch13.MapMode = "FlatFace"
sketch13.AttachmentOffset = App.Placement(V(0, 0, 25), App.Rotation())
add_polygon(sketch13, [(44, -28), (87, -28), (87, 15), (44, 15)])  # lines 0-3
sketch13.addConstraint([
    Sketcher.Constraint("Horizontal", 0),
    Sketcher.Constraint("Vertical", 1),
    Sketcher.Constraint("Horizontal", 2),
    Sketcher.Constraint("Vertical", 3),
    Sketcher.Constraint("Equal", 2, 1),
    Sketcher.Constraint("DistanceX", 0, 1, 0, 2, Q("43 mm")),
    Sketcher.Constraint("DistanceX", -1, 1, 0, 2, Q("87 mm")),
    Sketcher.Constraint("DistanceY", 0, 2, -1, 1, Q("28 mm")),
])
pad9 = body11.newObject("PartDesign::Pad", "Pad008")
pad9.Profile = sketch13
pad9.Length = 12

doc.recompute()
